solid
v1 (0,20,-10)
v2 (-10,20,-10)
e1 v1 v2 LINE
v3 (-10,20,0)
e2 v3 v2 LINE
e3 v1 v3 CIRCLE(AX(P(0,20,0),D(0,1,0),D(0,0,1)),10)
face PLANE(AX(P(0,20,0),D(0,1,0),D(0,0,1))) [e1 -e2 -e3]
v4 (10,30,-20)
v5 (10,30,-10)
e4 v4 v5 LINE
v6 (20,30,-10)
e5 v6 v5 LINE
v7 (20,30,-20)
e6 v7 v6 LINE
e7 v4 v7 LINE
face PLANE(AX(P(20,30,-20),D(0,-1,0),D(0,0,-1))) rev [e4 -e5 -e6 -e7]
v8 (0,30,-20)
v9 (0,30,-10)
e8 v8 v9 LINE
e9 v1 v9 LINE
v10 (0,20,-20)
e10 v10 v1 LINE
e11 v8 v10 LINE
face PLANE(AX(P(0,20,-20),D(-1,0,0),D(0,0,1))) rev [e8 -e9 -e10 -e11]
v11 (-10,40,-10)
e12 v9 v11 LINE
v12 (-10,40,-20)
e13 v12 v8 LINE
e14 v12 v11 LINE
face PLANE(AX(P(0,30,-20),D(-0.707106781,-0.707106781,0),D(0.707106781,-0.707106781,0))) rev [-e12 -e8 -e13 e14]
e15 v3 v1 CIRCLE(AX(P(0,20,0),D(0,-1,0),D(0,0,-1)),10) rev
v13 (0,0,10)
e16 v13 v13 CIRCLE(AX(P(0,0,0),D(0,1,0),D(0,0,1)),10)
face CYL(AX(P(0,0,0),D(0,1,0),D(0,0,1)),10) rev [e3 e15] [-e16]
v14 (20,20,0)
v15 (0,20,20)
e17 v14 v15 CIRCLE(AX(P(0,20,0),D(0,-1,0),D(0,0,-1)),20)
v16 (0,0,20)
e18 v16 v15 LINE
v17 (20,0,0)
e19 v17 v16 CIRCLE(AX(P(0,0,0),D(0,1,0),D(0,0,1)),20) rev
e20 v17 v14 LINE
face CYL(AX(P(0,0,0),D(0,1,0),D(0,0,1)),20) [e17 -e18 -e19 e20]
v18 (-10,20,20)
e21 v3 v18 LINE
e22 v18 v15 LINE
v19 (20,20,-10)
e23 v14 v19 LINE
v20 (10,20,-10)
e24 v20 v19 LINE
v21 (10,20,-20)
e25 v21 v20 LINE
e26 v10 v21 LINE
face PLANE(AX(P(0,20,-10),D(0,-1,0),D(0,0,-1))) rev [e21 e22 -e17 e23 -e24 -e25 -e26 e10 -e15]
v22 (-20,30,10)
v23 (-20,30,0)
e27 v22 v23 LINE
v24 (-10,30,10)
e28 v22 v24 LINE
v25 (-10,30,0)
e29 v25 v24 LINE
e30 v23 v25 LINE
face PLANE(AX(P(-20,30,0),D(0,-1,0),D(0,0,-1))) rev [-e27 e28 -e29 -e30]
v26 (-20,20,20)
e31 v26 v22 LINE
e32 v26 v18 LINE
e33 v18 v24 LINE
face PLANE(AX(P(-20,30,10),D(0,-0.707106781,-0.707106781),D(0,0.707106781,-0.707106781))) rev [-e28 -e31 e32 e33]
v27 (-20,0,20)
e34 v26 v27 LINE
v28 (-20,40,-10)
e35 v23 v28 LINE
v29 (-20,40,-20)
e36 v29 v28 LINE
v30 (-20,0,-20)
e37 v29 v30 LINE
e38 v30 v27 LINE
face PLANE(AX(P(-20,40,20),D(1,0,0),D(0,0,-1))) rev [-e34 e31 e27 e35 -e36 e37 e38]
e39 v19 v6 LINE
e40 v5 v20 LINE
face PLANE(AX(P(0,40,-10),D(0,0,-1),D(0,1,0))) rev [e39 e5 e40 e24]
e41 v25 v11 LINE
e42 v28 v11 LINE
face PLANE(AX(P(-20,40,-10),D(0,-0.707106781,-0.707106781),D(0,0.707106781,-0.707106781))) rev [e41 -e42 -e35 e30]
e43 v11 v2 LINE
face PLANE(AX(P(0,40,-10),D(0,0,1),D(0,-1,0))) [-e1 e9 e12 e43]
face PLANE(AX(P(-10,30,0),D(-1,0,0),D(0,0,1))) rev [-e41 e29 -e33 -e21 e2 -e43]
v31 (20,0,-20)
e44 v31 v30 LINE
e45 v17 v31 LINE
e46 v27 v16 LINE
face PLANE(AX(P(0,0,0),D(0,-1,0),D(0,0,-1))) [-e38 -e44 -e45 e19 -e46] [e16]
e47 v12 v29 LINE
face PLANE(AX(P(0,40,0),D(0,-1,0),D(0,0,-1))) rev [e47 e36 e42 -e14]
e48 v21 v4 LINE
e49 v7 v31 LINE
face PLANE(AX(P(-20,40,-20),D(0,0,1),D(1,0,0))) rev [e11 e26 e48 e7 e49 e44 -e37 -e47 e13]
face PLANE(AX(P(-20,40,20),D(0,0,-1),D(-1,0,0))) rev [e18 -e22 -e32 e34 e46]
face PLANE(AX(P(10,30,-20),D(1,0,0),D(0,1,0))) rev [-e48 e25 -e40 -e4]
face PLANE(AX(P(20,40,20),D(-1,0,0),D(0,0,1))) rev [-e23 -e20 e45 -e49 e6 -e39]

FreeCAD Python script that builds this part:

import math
import FreeCAD as App
import Part
import Sketcher

V = App.Vector
Q = App.Units.Quantity

doc = App.newDocument("Part")
body = doc.addObject("PartDesign::Body", "Body")

# Sketch on XZ plane
sketch1 = doc.addObject("Sketcher::SketchObject", "Sketch")
body.addObject(sketch1)
sketch1.AttachmentSupport = (doc.XZ_Plane, [""])
sketch1.MapMode = "FlatFace"
sketch1.addGeometry(Part.LineSegment(V(-20, -20, 0), V(-20, 20, 0)), False)
sketch1.addGeometry(Part.LineSegment(V(-20, 20, 0), V(20, 20, 0)), False)
sketch1.addGeometry(Part.LineSegment(V(20, 20, 0), V(20, -20, 0)), False)
sketch1.addGeometry(Part.LineSegment(V(20, -20, 0), V(-20, -20, 0)), False)
sketch1.addConstraint(Sketcher.Constraint("Coincident", 0, 2, 1, 1))
sketch1.addConstraint(Sketcher.Constraint("Coincident", 1, 2, 2, 1))
sketch1.addConstraint(Sketcher.Constraint("Coincident", 2, 2, 3, 1))
sketch1.addConstraint(Sketcher.Constraint("Coincident", 3, 2, 0, 1))
sketch1.addConstraint(Sketcher.Constraint("Vertical", 0))
sketch1.addConstraint(Sketcher.Constraint("Horizontal", 1))
sketch1.addConstraint(Sketcher.Constraint("Vertical", 2))
sketch1.addConstraint(Sketcher.Constraint("Horizontal", 3))
sketch1.addConstraint(Sketcher.Constraint("Symmetric", 0, 2, 2, 2, -1, 1))
sketch1.addConstraint(Sketcher.Constraint("Equal", 3, 0))
sketch1.addConstraint(Sketcher.Constraint("DistanceX", 1, 1, 1, 2, Q("40 mm")))
pad1 = doc.addObject("PartDesign::Pad", "Pad")
body.addObject(pad1)
pad1.Profile = sketch1
pad1.Length = 40
pad1.Reversed = True

# Sketch on XZ plane
sketch2 = doc.addObject("Sketcher::SketchObject", "Sketch001")
body.addObject(sketch2)
sketch2.AttachmentSupport = (doc.XZ_Plane, [""])
sketch2.MapMode = "FlatFace"
sketch2.AttachmentOffset = App.Placement(V(0, 0, -40), App.Rotation())
sketch2.addGeometry(Part.Circle(V(0, 0, 0), V(0, 0, 1), 10), False)
sketch2.addGeometry(Part.LineSegment(V(0, 20, 0), V(20, 20, 0)), False)
sketch2.addGeometry(Part.LineSegment(V(20, 20, 0), V(20, 0, 0)), False)
sketch2.addGeometry(Part.ArcOfCircle(Part.Circle(V(0, 0, 0), V(0, 0, 1), 20), math.radians(0), math.radians(90)), False)
sketch2.addConstraint(Sketcher.Constraint("Coincident", 1, 2, 2, 1))
sketch2.addConstraint(Sketcher.Constraint("Tangent", 2, 2, 3, 1))
sketch2.addConstraint(Sketcher.Constraint("Tangent", 3, 2, 1, 1))
sketch2.addConstraint(Sketcher.Constraint("Horizontal", 1))
sketch2.addConstraint(Sketcher.Constraint("Vertical", 2))
sketch2.addConstraint(Sketcher.Constraint("Coincident", 0, 3, -1, 1))
sketch2.addConstraint(Sketcher.Constraint("Coincident", 3, 3, -1, 1))
sketch2.addConstraint(Sketcher.Constraint("Diameter", 0, Q("20 mm")))
sketch2.addConstraint(Sketcher.Constraint("Radius", 3, Q("20 mm")))
pocket1 = doc.addObject("PartDesign::Pocket", "Pocket")
body.addObject(pocket1)
pocket1.Profile = sketch2
pocket1.Type = "ThroughAll"
pocket1.Reversed = True

# Sketch on YZ plane
sketch3 = doc.addObject("Sketcher::SketchObject", "Sketch002")
body.addObject(sketch3)
sketch3.AttachmentSupport = (doc.YZ_Plane, [""])
sketch3.MapMode = "FlatFace"
sketch3.AttachmentOffset = App.Placement(V(0, 0, 20), App.Rotation())
sketch3.addGeometry(Part.LineSegment(V(40, 20, 0), V(20, 20, 0)), False)
sketch3.addGeometry(Part.LineSegment(V(20, 20, 0), V(20, -10, 0)), False)
sketch3.addGeometry(Part.LineSegment(V(20, -10, 0), V(40, -10, 0)), False)
sketch3.addGeometry(Part.LineSegment(V(40, -10, 0), V(40, 20, 0)), False)
sketch3.addConstraint(Sketcher.Constraint("Coincident", 0, 2, 1, 1))
sketch3.addConstraint(Sketcher.Constraint("Coincident", 1, 2, 2, 1))
sketch3.addConstraint(Sketcher.Constraint("Coincident", 2, 2, 3, 1))
sketch3.addConstraint(Sketcher.Constraint("Coincident", 3, 2, 0, 1))
sketch3.addConstraint(Sketcher.Constraint("Horizontal", 0))
sketch3.addConstraint(Sketcher.Constraint("Vertical", 1))
sketch3.addConstraint(Sketcher.Constraint("Horizontal", 2))
sketch3.addConstraint(Sketcher.Constraint("Vertical", 3))
sketch3.addConstraint(Sketcher.Constraint("DistanceX", 0, 2, 0, 1, Q("20 mm")))
sketch3.addConstraint(Sketcher.Constraint("DistanceY", 1, 2, 1, 1, Q("30 mm")))
sketch3.addConstraint(Sketcher.Constraint("DistanceX", -1, 1, 0, 2, Q("20 mm")))
sketch3.addConstraint(Sketcher.Constraint("DistanceY", -1, 1, 0, 2, Q("20 mm")))
pocket2 = doc.addObject("PartDesign::Pocket", "Pocket001")
body.addObject(pocket2)
pocket2.Profile = sketch3
pocket2.Length = 20

# Sketch on XY plane
sketch4 = doc.addObject("Sketcher::SketchObject", "Sketch003")
body.addObject(sketch4)
sketch4.AttachmentSupport = (doc.XY_Plane, [""])
sketch4.MapMode = "FlatFace"
sketch4.AttachmentOffset = App.Placement(V(0, 0, 20), App.Rotation())
sketch4.addGeometry(Part.LineSegment(V(10, 30, 0), V(20, 30, 0)), False)
sketch4.addGeometry(Part.LineSegment(V(20, 30, 0), V(20, 40, 0)), False)
sketch4.addGeometry(Part.LineSegment(V(20, 40, 0), V(-10, 40, 0)), False)
sketch4.addGeometry(Part.LineSegment(V(-10, 40, 0), V(0, 30, 0)), False)
sketch4.addGeometry(Part.LineSegment(V(0, 30, 0), V(0, 20, 0)), False)
sketch4.addGeometry(Part.LineSegment(V(0, 20, 0), V(10, 20, 0)), False)
sketch4.addGeometry(Part.LineSegment(V(10, 20, 0), V(10, 30, 0)), False)
sketch4.addConstraint(Sketcher.Constraint("Coincident", 0, 2, 1, 1))
sketch4.addConstraint(Sketcher.Constraint("Coincident", 1, 2, 2, 1))
sketch4.addConstraint(Sketcher.Constraint("Coincident", 2, 2, 3, 1))
sketch4.addConstraint(Sketcher.Constraint("Coincident", 3, 2, 4, 1))
sketch4.addConstraint(Sketcher.Constraint("Coincident", 4, 2, 5, 1))
sketch4.addConstraint(Sketcher.Constraint("Coincident", 5, 2, 6, 1))
sketch4.addConstraint(Sketcher.Constraint("Coincident", 6, 2, 0, 1))
sketch4.addConstraint(Sketcher.Constraint("Horizontal", 0))
sketch4.addConstraint(Sketcher.Constraint("Vertical", 1))
sketch4.addConstraint(Sketcher.Constraint("Horizontal", 2))
sketch4.addConstraint(Sketcher.Constraint("Vertical", 4))
sketch4.addConstraint(Sketcher.Constraint("Horizontal", 5))
sketch4.addConstraint(Sketcher.Constraint("Vertical", 6))
sketch4.addConstraint(Sketcher.Constraint("PointOnObject", 3, 2, -2))
sketch4.addConstraint(Sketcher.Constraint("Horizontal", 0, 2, 3, 2))
sketch4.addConstraint(Sketcher.Constraint("Equal", 0, 5))
sketch4.addConstraint(Sketcher.Constraint("Equal", 5, 1))
sketch4.addConstraint(Sketcher.Constraint("Equal", 1, 4))
sketch4.addConstraint(Sketcher.Constraint("DistanceX", 0, 1, 0, 2, Q("10 mm")))
sketch4.addConstraint(Sketcher.Constraint("DistanceX", 2, 2, 2, 1, Q("30 mm")))
sketch4.addConstraint(Sketcher.Constraint("DistanceY", -1, 1, 0, 2, Q("30 mm")))
pocket3 = doc.addObject("PartDesign::Pocket", "Pocket002")
body.addObject(pocket3)
pocket3.Profile = sketch4
pocket3.Type = "ThroughAll"

# Sketch on YZ plane
sketch5 = doc.addObject("Sketcher::SketchObject", "Sketch004")
body.addObject(sketch5)
sketch5.AttachmentSupport = (doc.YZ_Plane, [""])
sketch5.MapMode = "FlatFace"
sketch5.AttachmentOffset = App.Placement(V(0, 0, 20), App.Rotation())
sketch5.addGeometry(Part.LineSegment(V(30, 0, 0), V(40, -10, 0)), False)
sketch5.addGeometry(Part.LineSegment(V(40, -10, 0), V(40, 20, 0)), False)
sketch5.addGeometry(Part.LineSegment(V(40, 20, 0), V(20, 20, 0)), False)
sketch5.addGeometry(Part.LineSegment(V(20, 20, 0), V(30, 10, 0)), False)
sketch5.addGeometry(Part.LineSegment(V(30, 10, 0), V(30, 0, 0)), False)
sketch5.addConstraint(Sketcher.Constraint("Coincident", 0, 2, 1, 1))
sketch5.addConstraint(Sketcher.Constraint("Coincident", 1, 2, 2, 1))
sketch5.addConstraint(Sketcher.Constraint("Coincident", 2, 2, 3, 1))
sketch5.addConstraint(Sketcher.Constraint("Coincident", 3, 2, 4, 1))
sketch5.addConstraint(Sketcher.Constraint("Coincident", 4, 2, 0, 1))
sketch5.addConstraint(Sketcher.Constraint("Vertical", 1))
sketch5.addConstraint(Sketcher.Constraint("Horizontal", 2))
sketch5.addConstraint(Sketcher.Constraint("Vertical", 4))
sketch5.addConstraint(Sketcher.Constraint("PointOnObject", 4, 2, -1))
sketch5.addConstraint(Sketcher.Constraint("Parallel", 0, 3))
sketch5.addConstraint(Sketcher.Constraint("Equal", 0, 3))
sketch5.addConstraint(Sketcher.Constraint("DistanceX", 2, 2, 2, 1, Q("20 mm")))
sketch5.addConstraint(Sketcher.Constraint("DistanceY", 1, 1, 1, 2, Q("30 mm")))
sketch5.addConstraint(Sketcher.Constraint("DistanceY", 4, 2, 4, 1, Q("10 mm")))
sketch5.addConstraint(Sketcher.Constraint("DistanceX", -1, 1, 0, 2, Q("40 mm")))
pocket4 = doc.addObject("PartDesign::Pocket", "Pocket003")
body.addObject(pocket4)
pocket4.Profile = sketch5
pocket4.Type = "ThroughAll"

# Sketch on XY plane
sketch6 = doc.addObject("Sketcher::SketchObject", "Sketch005")
body.addObject(sketch6)
sketch6.AttachmentSupport = (doc.XY_Plane, [""])
sketch6.MapMode = "FlatFace"
sketch6.AttachmentOffset = App.Placement(V(0, 0, 20), App.Rotation())
sketch6.addGeometry(Part.LineSegment(V(-10, 30, 0), V(-10, 20, 0)), False)
sketch6.addGeometry(Part.LineSegment(V(-10, 20, 0), V(0, 20, 0)), False)
sketch6.addGeometry(Part.LineSegment(V(0, 20, 0), V(0, 30, 0)), False)
sketch6.addGeometry(Part.LineSegment(V(0, 30, 0), V(-10, 30, 0)), False)
sketch6.addConstraint(Sketcher.Constraint("Coincident", 0, 2, 1, 1))
sketch6.addConstraint(Sketcher.Constraint("Coincident", 1, 2, 2, 1))
sketch6.addConstraint(Sketcher.Constraint("Coincident", 2, 2, 3, 1))
sketch6.addConstraint(Sketcher.Constraint("Coincident", 3, 2, 0, 1))
sketch6.addConstraint(Sketcher.Constraint("Vertical", 0))
sketch6.addConstraint(Sketcher.Constraint("Horizontal", 1))
sketch6.addConstraint(Sketcher.Constraint("Vertical", 2))
sketch6.addConstraint(Sketcher.Constraint("Horizontal", 3))
sketch6.addConstraint(Sketcher.Constraint("PointOnObject", 1, 2, -2))
sketch6.addConstraint(Sketcher.Constraint("Equal", 3, 0))
sketch6.addConstraint(Sketcher.Constraint("DistanceX", 1, 1, 1, 2, Q("10 mm")))
sketch6.addConstraint(Sketcher.Constraint("DistanceY", -1, 1, 0, 2, Q("20 mm")))
pocket5 = doc.addObject("PartDesign::Pocket", "Pocket004")
body.addObject(pocket5)
pocket5.Profile = sketch6
pocket5.Length = 20

# Sketch on XZ plane
sketch7 = doc.addObject("Sketcher::SketchObject", "Sketch006")
body.addObject(sketch7)
sketch7.AttachmentSupport = (doc.XZ_Plane, [""])
sketch7.MapMode = "FlatFace"
sketch7.AttachmentOffset = App.Placement(V(0, 0, -20), App.Rotation())
sketch7.addGeometry(Part.ArcOfCircle(Part.Circle(V(0, 0, 0), V(0, 0, 1), 10), math.radians(180), math.radians(225)), False)
sketch7.addGeometry(Part.ArcOfCircle(Part.Circle(V(0, 0, 0), V(0, 0, 1), 10), math.radians(-135), math.radians(-90)), False)
sketch7.addGeometry(Part.LineSegment(V(0, -10, 0), V(-10, -10, 0)), False)
sketch7.addGeometry(Part.LineSegment(V(-10, -10, 0), V(-10, 0, 0)), False)
sketch7.addConstraint(Sketcher.Constraint("Tangent", 0, 2, 1, 1))
sketch7.addConstraint(Sketcher.Constraint("Tangent", 1, 2, 2, 1))
sketch7.addConstraint(Sketcher.Constraint("Coincident", 2, 2, 3, 1))
sketch7.addConstraint(Sketcher.Constraint("Tangent", 3, 2, 0, 1))
sketch7.addConstraint(Sketcher.Constraint("Horizontal", 2))
sketch7.addConstraint(Sketcher.Constraint("Vertical", 3))
sketch7.addConstraint(Sketcher.Constraint("Coincident", 0, 3, -1, 1))
sketch7.addConstraint(Sketcher.Constraint("Equal", 0, 1))
sketch7.addConstraint(Sketcher.Constraint("Radius", 0, Q("10 mm")))
sketch7.addConstraint(Sketcher.Constraint("DistanceX", 0, 2, -1, 1, Q("7.071068 mm")))
pocket6 = doc.addObject("PartDesign::Pocket", "Pocket005")
body.addObject(pocket6)
pocket6.Profile = sketch7
pocket6.Type = "ThroughAll"

doc.recompute()
